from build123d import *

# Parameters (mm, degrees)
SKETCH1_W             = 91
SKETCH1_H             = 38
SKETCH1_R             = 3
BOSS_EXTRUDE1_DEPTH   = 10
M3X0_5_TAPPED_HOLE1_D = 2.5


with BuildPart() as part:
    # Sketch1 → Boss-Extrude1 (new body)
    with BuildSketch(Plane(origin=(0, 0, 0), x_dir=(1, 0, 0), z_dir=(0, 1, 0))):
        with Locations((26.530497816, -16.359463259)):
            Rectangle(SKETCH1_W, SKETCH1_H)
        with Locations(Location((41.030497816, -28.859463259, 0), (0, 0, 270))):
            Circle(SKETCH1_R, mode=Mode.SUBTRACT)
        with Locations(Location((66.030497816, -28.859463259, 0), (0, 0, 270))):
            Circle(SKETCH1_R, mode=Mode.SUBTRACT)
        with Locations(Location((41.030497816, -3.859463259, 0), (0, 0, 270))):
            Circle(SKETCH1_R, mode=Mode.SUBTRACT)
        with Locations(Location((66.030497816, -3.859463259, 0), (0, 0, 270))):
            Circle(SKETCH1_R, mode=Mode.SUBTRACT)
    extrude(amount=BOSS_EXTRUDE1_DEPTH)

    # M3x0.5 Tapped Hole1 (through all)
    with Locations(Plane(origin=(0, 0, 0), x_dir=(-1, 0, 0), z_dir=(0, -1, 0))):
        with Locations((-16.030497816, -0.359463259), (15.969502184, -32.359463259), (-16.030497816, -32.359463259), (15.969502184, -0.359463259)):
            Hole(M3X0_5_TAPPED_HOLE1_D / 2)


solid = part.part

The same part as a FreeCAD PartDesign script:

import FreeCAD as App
import Part
import Sketcher


def add_polygon(sketch, points):
    """Adds a closed chain of lines whose ends are joined by coincident constraints."""
    first, n = sketch.GeometryCount, len(points)
    for a, b in zip(points, points[1:] + points[:1]):
        sketch.addGeometry(Part.LineSegment(App.Vector(*a, 0), App.Vector(*b, 0)), False)
    for i in range(n):
        sketch.addConstraint(Sketcher.Constraint("Coincident", first + i, 2, first + (i + 1) % n, 1))

doc = App.newDocument("Part")
body = doc.addObject("PartDesign::Body", "Body")

sketch1 = body.newObject("Sketcher::SketchObject", "Sketch")
sketch1.AttachmentSupport = (doc.getObject("XZ_Plane"), [""])
sketch1.MapMode = "FlatFace"
add_polygon(sketch1, [(-19, -2.6), (-19, 35.4), (72, 35.4), (72, -2.6)])
sketch1.addGeometry(Part.Circle(App.Vector(41, 28.9, 0), App.Vector(0, 0, 1), 3), False)
sketch1.addGeometry(Part.Circle(App.Vector(66, 28.9, 0), App.Vector(0, 0, 1), 3), False)
sketch1.addGeometry(Part.Circle(App.Vector(41, 3.9, 0), App.Vector(0, 0, 1), 3), False)
sketch1.addGeometry(Part.Circle(App.Vector(66, 3.9, 0), App.Vector(0, 0, 1), 3), False)
sketch1.addConstraint(Sketcher.Constraint("Vertical", 0))
sketch1.addConstraint(Sketcher.Constraint("Horizontal", 1))
sketch1.addConstraint(Sketcher.Constraint("Vertical", 2))
sketch1.addConstraint(Sketcher.Constraint("Horizontal", 3))
sketch1.addConstraint(Sketcher.Constraint("Equal", 4, 5))
sketch1.addConstraint(Sketcher.Constraint("Equal", 5, 6))
sketch1.addConstraint(Sketcher.Constraint("Equal", 6, 7))
sketch1.addConstraint(Sketcher.Constraint("Horizontal", 4, 3, 5, 3))
sketch1.addConstraint(Sketcher.Constraint("Horizontal", 6, 3, 7, 3))
sketch1.addConstraint(Sketcher.Constraint("Vertical", 4, 3, 6, 3))
sketch1.addConstraint(Sketcher.Constraint("Vertical", 5, 3, 7, 3))
sketch1.addConstraint(Sketcher.Constraint("Diameter", 4, 6.0))
sketch1.addConstraint(Sketcher.Constraint("DistanceX", 1, 1, 1, 2, 91.0))
sketch1.addConstraint(Sketcher.Constraint("DistanceY", 0, 1, 0, 2, 38.0))
sketch1.addConstraint(Sketcher.Constraint("DistanceX", 4, 3, 5, 3, 25.0))
sketch1.addConstraint(Sketcher.Constraint("DistanceY", 6, 3, 4, 3, 25.0))
sketch1.addConstraint(Sketcher.Constraint("DistanceX", 0, 2, 4, 3, 60.0))
sketch1.addConstraint(Sketcher.Constraint("DistanceY", 4, 3, 0, 2, 6.5))
sketch1.addConstraint(Sketcher.Constraint("DistanceX", -1, 1, 4, 3, 41.030498))
sketch1.addConstraint(Sketcher.Constraint("DistanceY", -1, 1, 4, 3, 28.859463))
pad1 = body.newObject("PartDesign::Pad", "Pad")
pad1.Profile = sketch1
pad1.Length = 10
pad1.Reversed = True

sketch2 = body.newObject("Sketcher::SketchObject", "Sketch001")
sketch2.AttachmentSupport = (doc.getObject("XZ_Plane"), [""])
sketch2.MapMode = "FlatFace"
sketch2.addGeometry(Part.Circle(App.Vector(16, 0.4, 0), App.Vector(0, 0, 1), 1.2), False)
sketch2.addGeometry(Part.Circle(App.Vector(-16, 32.4, 0), App.Vector(0, 0, 1), 1.2), False)
sketch2.addGeometry(Part.Circle(App.Vector(16, 32.4, 0), App.Vector(0, 0, 1), 1.2), False)
sketch2.addGeometry(Part.Circle(App.Vector(-16, 0.4, 0), App.Vector(0, 0, 1), 1.2), False)
sketch2.addConstraint(Sketcher.Constraint("Equal", 0, 1))
sketch2.addConstraint(Sketcher.Constraint("Equal", 1, 2))
sketch2.addConstraint(Sketcher.Constraint("Equal", 2, 3))
sketch2.addConstraint(Sketcher.Constraint("Horizontal", 1, 3, 2, 3))
sketch2.addConstraint(Sketcher.Constraint("Horizontal", 0, 3, 3, 3))
sketch2.addConstraint(Sketcher.Constraint("Vertical", 0, 3, 2, 3))
sketch2.addConstraint(Sketcher.Constraint("Vertical", 1, 3, 3, 3))
sketch2.addConstraint(Sketcher.Constraint("Diameter", 0, 2.5))
sketch2.addConstraint(Sketcher.Constraint("DistanceX", 1, 3, 0, 3, 32.0))
sketch2.addConstraint(Sketcher.Constraint("DistanceY", 0, 3, 1, 3, 32.0))
sketch2.addConstraint(Sketcher.Constraint("DistanceX", -1, 1, 0, 3, 16.030498))
sketch2.addConstraint(Sketcher.Constraint("DistanceY", -1, 1, 0, 3, 0.359463))
doc.recompute()
hole = body.newObject("PartDesign::Hole", "Hole")
hole.Profile = sketch2
hole.ThreadType = "None"
hole.Diameter = 2.5
hole.DepthType = "ThroughAll"

doc.recompute()
